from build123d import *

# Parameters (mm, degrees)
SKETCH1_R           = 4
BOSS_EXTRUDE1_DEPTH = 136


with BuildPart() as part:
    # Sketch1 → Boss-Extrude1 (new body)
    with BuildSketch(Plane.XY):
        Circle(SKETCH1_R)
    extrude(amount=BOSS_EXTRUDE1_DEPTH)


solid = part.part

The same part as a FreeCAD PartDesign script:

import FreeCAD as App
import Part
import Sketcher

V = App.Vector
Q = App.Units.Quantity

doc = App.newDocument("Part")
body = doc.addObject("PartDesign::Body", "Body")

sketch1 = body.newObject("Sketcher::SketchObject", "Sketch")
sketch1.AttachmentSupport = (doc.getObject("XY_Plane"), [""])
sketch1.MapMode = "FlatFace"
sketch1.addGeometry(Part.Circle(V(0, 0, 0), V(0, 0, 1), 4), False)
sketch1.addConstraint([
    Sketcher.Constraint("Coincident", 0, 3, -1, 1),
    Sketcher.Constraint("Diameter", 0, Q("8 mm")),
])
pad1 = body.newObject("PartDesign::Pad", "Pad")
pad1.Profile = sketch1
pad1.Length = 136

doc.recompute()
